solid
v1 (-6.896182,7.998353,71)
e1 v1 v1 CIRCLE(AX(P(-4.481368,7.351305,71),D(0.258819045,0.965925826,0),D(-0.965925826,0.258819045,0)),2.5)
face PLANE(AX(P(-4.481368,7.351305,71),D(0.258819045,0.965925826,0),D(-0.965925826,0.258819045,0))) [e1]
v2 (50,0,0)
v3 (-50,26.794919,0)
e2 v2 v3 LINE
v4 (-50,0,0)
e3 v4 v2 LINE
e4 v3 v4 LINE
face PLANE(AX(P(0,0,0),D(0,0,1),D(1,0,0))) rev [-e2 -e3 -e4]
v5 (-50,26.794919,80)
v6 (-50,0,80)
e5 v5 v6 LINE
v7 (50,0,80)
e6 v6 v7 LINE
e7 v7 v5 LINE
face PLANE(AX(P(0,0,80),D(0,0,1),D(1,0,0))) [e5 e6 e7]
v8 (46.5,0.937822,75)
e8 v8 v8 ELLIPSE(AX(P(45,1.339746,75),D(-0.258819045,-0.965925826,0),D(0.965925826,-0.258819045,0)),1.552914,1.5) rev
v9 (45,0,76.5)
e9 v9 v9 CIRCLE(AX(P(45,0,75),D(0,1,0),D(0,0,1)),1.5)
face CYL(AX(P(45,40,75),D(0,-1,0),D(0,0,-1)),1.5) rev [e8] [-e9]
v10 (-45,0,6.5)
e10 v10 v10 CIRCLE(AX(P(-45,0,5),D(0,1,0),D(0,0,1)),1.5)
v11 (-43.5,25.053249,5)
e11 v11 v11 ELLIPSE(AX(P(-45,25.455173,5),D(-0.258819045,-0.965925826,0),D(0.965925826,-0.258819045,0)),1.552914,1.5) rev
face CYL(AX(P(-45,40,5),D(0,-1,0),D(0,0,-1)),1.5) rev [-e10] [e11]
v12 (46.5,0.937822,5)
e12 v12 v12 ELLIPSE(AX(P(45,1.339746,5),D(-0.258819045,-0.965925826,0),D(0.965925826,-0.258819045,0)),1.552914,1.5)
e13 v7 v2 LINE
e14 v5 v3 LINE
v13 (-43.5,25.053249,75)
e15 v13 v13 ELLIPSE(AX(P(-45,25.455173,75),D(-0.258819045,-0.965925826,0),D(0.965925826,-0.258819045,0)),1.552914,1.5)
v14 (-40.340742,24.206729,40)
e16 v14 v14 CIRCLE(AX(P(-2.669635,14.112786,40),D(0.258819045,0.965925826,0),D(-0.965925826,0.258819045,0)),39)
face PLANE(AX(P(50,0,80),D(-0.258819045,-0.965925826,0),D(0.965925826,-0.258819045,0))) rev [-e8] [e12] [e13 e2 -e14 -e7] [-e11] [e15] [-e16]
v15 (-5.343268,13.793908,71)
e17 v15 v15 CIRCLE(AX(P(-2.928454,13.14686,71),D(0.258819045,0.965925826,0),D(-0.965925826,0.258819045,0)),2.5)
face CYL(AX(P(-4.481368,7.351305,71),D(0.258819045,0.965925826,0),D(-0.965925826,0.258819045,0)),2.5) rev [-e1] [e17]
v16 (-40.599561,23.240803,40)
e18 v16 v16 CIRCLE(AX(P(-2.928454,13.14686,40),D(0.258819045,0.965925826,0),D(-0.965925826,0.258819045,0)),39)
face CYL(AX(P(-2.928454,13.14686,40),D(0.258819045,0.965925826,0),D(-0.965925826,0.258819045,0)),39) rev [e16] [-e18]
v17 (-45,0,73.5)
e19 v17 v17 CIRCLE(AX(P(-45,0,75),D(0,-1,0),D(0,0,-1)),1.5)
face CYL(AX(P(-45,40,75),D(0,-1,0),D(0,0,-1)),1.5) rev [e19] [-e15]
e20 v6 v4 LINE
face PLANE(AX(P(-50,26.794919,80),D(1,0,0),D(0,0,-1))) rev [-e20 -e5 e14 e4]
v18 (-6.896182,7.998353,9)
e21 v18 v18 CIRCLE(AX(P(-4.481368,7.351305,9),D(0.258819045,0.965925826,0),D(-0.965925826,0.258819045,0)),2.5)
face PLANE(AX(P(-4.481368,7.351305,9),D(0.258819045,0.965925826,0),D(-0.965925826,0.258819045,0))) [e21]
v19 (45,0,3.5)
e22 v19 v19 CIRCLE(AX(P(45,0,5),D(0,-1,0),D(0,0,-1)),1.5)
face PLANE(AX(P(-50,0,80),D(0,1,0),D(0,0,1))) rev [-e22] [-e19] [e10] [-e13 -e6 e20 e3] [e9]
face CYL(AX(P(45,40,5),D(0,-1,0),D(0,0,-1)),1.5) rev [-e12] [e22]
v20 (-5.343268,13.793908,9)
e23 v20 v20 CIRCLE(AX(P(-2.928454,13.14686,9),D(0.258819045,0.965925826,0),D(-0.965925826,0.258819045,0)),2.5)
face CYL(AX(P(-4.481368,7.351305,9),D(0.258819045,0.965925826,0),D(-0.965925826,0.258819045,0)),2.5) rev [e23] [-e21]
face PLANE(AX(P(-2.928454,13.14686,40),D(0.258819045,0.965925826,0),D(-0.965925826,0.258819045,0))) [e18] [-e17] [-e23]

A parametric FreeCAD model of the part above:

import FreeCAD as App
import Part
import Sketcher
from FreeCAD import Vector
Q = App.Units.Quantity

doc = App.newDocument("Part")
params = doc.addObject("Spreadsheet::Sheet", "Params")
for row, (alias, value) in enumerate([
    ("sketch1_width", "100 mm"),
    ("pad1_length", "80 mm"),
    ("sketch2_diameter", "78 mm"),
    ("pocket1_length", "1 mm"),
    ("sketch3_diameter", "5 mm"),
    ("pocket2_length", "6 mm"),
    ("sketch4_diameter", "3 mm"),
    ("pocket3_length", "40 mm"),
], start=1):
    params.set(f"A{row}", alias)
    params.set(f"B{row}", "=" + value)
    params.setAlias(f"B{row}", alias)

body = doc.addObject("PartDesign::Body", "Body")

sketch1 = body.newObject("Sketcher::SketchObject", "Sketch")
sketch1.AttachmentSupport = (doc.getObject("XY_Plane"), [""])
sketch1.MapMode = "FlatFace"
sketch1.addGeometry([
    Part.LineSegment(Vector(-50, 0, 0), Vector(50, 0, 0)),
    Part.LineSegment(Vector(50, 0, 0), Vector(-50, 27, 0)),
    Part.LineSegment(Vector(-50, 27, 0), Vector(-50, 0, 0)),
], False)
sketch1.addConstraint([
    Sketcher.Constraint("Coincident", 0, 2, 1, 1),
    Sketcher.Constraint("Coincident", 1, 2, 2, 1),
    Sketcher.Constraint("Coincident", 2, 2, 0, 1),
    Sketcher.Constraint("Horizontal", 0),
    Sketcher.Constraint("Vertical", 2),
    Sketcher.Constraint("Symmetric", 0, 2, 2, 2, -1, 1),
    Sketcher.Constraint("DistanceX", 0, 1, 0, 2, Q("100 mm")),
    Sketcher.Constraint("Angle", 1, Q("165 deg")),
])
sketch1.setExpression("Constraints[6]", "Params.sketch1_width")
pad1 = body.newObject("PartDesign::Pad", "Pad")
pad1.Profile = sketch1
pad1.setExpression("Length", "Params.pad1_length")

sketch2 = body.newObject("Sketcher::SketchObject", "Sketch001")
sketch2.Placement = App.Placement(Vector(3.349365, 12.5, 0), App.Rotation(Vector(0.965925826, -0.258819045, 0), Vector(0, 0, -0.999999999), Vector(0.258819045, 0.965925826, 0), "ZXY"))
sketch2.addGeometry(Part.Circle(Vector(-6, -40, 0), Vector(0, 0, 1), 39), False)
sketch2.addConstraint([
    Sketcher.Constraint("Diameter", 0, Q("78 mm")),
    Sketcher.Constraint("DistanceY", 0, 3, -1, 1, Q("40 mm")),
    Sketcher.Constraint("DistanceX", 0, 3, -1, 1, Q("6.231327 mm")),
])
sketch2.setExpression("Constraints[0]", "Params.sketch2_diameter")
pocket1 = body.newObject("PartDesign::Pocket", "Pocket")
pocket1.Profile = sketch2
pocket1.setExpression("Length", "Params.pocket1_length")

sketch3 = body.newObject("Sketcher::SketchObject", "Sketch002")
sketch3.Placement = App.Placement(Vector(3.090546, 11.534074, 0), App.Rotation(Vector(0.965925826, -0.258819045, 0), Vector(0, 0, -0.999999999), Vector(0.258819045, 0.965925826, 0), "ZXY"))
sketch3.addGeometry([
    Part.Circle(Vector(-6.2, -9, 0), Vector(0, 0, 1), 2.5),
    Part.Circle(Vector(-6.2, -71, 0), Vector(0, 0, 1), 2.5),
], False)
sketch3.addConstraint([
    Sketcher.Constraint("Equal", 0, 1),
    Sketcher.Constraint("Vertical", 0, 3, 1, 3),
    Sketcher.Constraint("Diameter", 0, Q("5 mm")),
    Sketcher.Constraint("DistanceY", 0, 3, -1, 1, Q("9 mm")),
    Sketcher.Constraint("DistanceY", 1, 3, -1, 1, Q("71 mm")),
    Sketcher.Constraint("DistanceX", 0, 3, -1, 1, Q("6.231327 mm")),
])
sketch3.setExpression("Constraints[2]", "Params.sketch3_diameter")
pocket2 = body.newObject("PartDesign::Pocket", "Pocket001")
pocket2.Profile = sketch3
pocket2.setExpression("Length", "Params.pocket2_length")

sketch4 = body.newObject("Sketcher::SketchObject", "Sketch003")
sketch4.AttachmentSupport = (doc.getObject("XZ_Plane"), [""])
sketch4.MapMode = "FlatFace"
sketch4.addGeometry([
    Part.Circle(Vector(-45, 75, 0), Vector(0, 0, 1), 1.5),
    Part.Circle(Vector(45, 75, 0), Vector(0, 0, 1), 1.5),
    Part.Circle(Vector(45, 5, 0), Vector(0, 0, 1), 1.5),
    Part.Circle(Vector(-45, 5, 0), Vector(0, 0, 1), 1.5),
], False)
sketch4.addConstraint([
    Sketcher.Constraint("Equal", 0, 1),
    Sketcher.Constraint("Equal", 1, 2),
    Sketcher.Constraint("Equal", 2, 3),
    Sketcher.Constraint("Symmetric", 0, 3, 1, 3, -2),
    Sketcher.Constraint("Symmetric", 2, 3, 3, 3, -2),
    Sketcher.Constraint("Vertical", 1, 3, 2, 3),
    Sketcher.Constraint("Diameter", 0, Q("3 mm")),
    Sketcher.Constraint("DistanceX", 0, 3, -1, 1, Q("45 mm")),
    Sketcher.Constraint("DistanceY", -1, 1, 0, 3, Q("75 mm")),
    Sketcher.Constraint("DistanceY", -1, 1, 2, 3, Q("5 mm")),
])
sketch4.setExpression("Constraints[6]", "Params.sketch4_diameter")
pocket3 = body.newObject("PartDesign::Pocket", "Pocket002")
pocket3.Profile = sketch4
pocket3.setExpression("Length", "Params.pocket3_length")

doc.recompute()
